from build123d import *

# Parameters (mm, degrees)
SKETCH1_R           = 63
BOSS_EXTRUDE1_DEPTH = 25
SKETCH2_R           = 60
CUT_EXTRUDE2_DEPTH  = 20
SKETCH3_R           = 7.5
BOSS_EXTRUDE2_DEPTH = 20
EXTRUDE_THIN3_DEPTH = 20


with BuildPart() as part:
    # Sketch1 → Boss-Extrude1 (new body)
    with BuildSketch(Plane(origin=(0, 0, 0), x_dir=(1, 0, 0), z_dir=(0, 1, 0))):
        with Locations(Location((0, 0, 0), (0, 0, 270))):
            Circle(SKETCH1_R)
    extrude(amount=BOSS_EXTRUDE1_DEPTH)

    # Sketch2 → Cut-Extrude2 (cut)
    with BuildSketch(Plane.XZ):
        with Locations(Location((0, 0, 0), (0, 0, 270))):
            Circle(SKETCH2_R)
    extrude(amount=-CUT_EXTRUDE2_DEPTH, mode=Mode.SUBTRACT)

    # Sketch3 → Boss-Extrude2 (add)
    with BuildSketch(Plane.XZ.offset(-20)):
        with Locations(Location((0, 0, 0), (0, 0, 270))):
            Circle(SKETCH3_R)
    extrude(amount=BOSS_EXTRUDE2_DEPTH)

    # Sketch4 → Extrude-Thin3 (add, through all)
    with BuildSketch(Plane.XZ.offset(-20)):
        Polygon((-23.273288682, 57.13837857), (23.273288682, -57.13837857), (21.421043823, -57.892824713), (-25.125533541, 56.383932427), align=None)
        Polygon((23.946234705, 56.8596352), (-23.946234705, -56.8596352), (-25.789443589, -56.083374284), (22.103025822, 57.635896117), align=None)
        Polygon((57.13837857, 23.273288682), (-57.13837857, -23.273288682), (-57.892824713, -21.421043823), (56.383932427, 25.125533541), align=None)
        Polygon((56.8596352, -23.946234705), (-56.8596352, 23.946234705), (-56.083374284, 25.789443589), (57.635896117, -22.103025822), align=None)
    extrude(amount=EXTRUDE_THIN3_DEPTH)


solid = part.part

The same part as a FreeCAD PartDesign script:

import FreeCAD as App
import Part
import Sketcher
from FreeCAD import Vector


def add_polygon(sketch, points):
    """Adds a closed chain of lines whose ends are joined by coincident constraints."""
    first, n = sketch.GeometryCount, len(points)
    for a, b in zip(points, points[1:] + points[:1]):
        sketch.addGeometry(Part.LineSegment(App.Vector(*a, 0), App.Vector(*b, 0)), False)
    for i in range(n):
        sketch.addConstraint(Sketcher.Constraint("Coincident", first + i, 2, first + (i + 1) % n, 1))

doc = App.newDocument("Part")
body = doc.addObject("PartDesign::Body", "Body")

# Sketch on XZ plane
sketch1 = body.newObject("Sketcher::SketchObject", "Sketch")
sketch1.AttachmentSupport = (doc.getObject("XZ_Plane"), [""])
sketch1.MapMode = "FlatFace"
sketch1.addGeometry(Part.Circle(Vector(0, 0, 0), Vector(0, 0, 1), 63), False)
sketch1.addConstraint([
    Sketcher.Constraint("Coincident", 0, 3, -1, 1),
    Sketcher.Constraint("Diameter", 0, 126.0),
])
pad1 = body.newObject("PartDesign::Pad", "Pad")
pad1.Profile = sketch1
pad1.Length = 25
pad1.Reversed = True

# Sketch on XZ plane
sketch2 = body.newObject("Sketcher::SketchObject", "Sketch001")
sketch2.AttachmentSupport = (doc.getObject("XZ_Plane"), [""])
sketch2.MapMode = "FlatFace"
sketch2.addGeometry(Part.Circle(Vector(0, 0, 0), Vector(0, 0, 1), 60), False)
sketch2.addConstraint([
    Sketcher.Constraint("Coincident", 0, 3, -1, 1),
    Sketcher.Constraint("Diameter", 0, 120.0),
])
pocket1 = body.newObject("PartDesign::Pocket", "Pocket")
pocket1.Profile = sketch2
pocket1.Length = 20

# Sketch on XZ plane
sketch3 = body.newObject("Sketcher::SketchObject", "Sketch002")
sketch3.AttachmentSupport = (doc.getObject("XZ_Plane"), [""])
sketch3.MapMode = "FlatFace"
sketch3.AttachmentOffset = App.Placement(Vector(0, 0, -20), App.Rotation())
sketch3.addGeometry(Part.Circle(Vector(0, 0, 0), Vector(0, 0, 1), 7.5), False)
sketch3.addConstraint([
    Sketcher.Constraint("Coincident", 0, 3, -1, 1),
    Sketcher.Constraint("Diameter", 0, 15.0),
])
pad2 = body.newObject("PartDesign::Pad", "Pad001")
pad2.Profile = sketch3
pad2.Length = 20

# Sketch on XZ plane
sketch4 = body.newObject("Sketcher::SketchObject", "Sketch003")
sketch4.AttachmentSupport = (doc.getObject("XZ_Plane"), [""])
sketch4.MapMode = "FlatFace"
sketch4.AttachmentOffset = App.Placement(Vector(0, 0, -20), App.Rotation())
add_polygon(sketch4, [(-2.606691, 1.097799), (-57.892825, -21.421044), (-57.138379, -23.273289), (-2.61947, -1.066948), (-25.789444, -56.083374), (-23.946235, -56.859635), (-1.097799, -2.606691), (21.421044, -57.892825), (23.273289, -57.138379), (0, 0), (56.859635, -23.946235), (57.635896, -22.103026), (2.61947, 1.066948), (57.138379, 23.273289), (56.383932, 25.125534), (1.097799, 2.606691), (23.946235, 56.859635), (22.103026, 57.635896), (-1.066948, 2.61947), (-23.273289, 57.138379), (-25.125534, 56.383932), (-3.673639, 3.717269), (-56.083374, 25.789444), (-56.859635, 23.946235)])  # lines 0-23
sketch4.addConstraint([
    Sketcher.Constraint("Coincident", 8, 2, -1, 1),
    Sketcher.Constraint("Symmetric", 2, 2, 11, 2, -1, 1),
    Sketcher.Constraint("Symmetric", 1, 2, 12, 2, -1, 1),
    Sketcher.Constraint("Symmetric", 5, 2, 14, 2, -1, 1),
    Sketcher.Constraint("Symmetric", 4, 2, 15, 2, -1, 1),
    Sketcher.Constraint("Symmetric", 7, 2, 18, 2, -1, 1),
    Sketcher.Constraint("Symmetric", 9, 2, 22, 2, -1, 1),
    Sketcher.Constraint("Perpendicular", 0, 1),
    Sketcher.Constraint("Perpendicular", 1, 2),
    Sketcher.Constraint("Perpendicular", 3, 4),
    Sketcher.Constraint("Perpendicular", 4, 5),
    Sketcher.Constraint("Perpendicular", 2, 6),
    Sketcher.Constraint("Perpendicular", 6, 7),
    Sketcher.Constraint("Perpendicular", 7, 8),
    Sketcher.Constraint("Perpendicular", 5, 9),
    Sketcher.Constraint("Perpendicular", 9, 10),
    Sketcher.Constraint("Perpendicular", 10, 11),
    Sketcher.Constraint("Perpendicular", 12, 13),
    Sketcher.Constraint("Perpendicular", 13, 14),
    Sketcher.Constraint("Perpendicular", 15, 16),
    Sketcher.Constraint("Perpendicular", 16, 17),
    Sketcher.Constraint("Perpendicular", 14, 18),
    Sketcher.Constraint("Perpendicular", 18, 19),
    Sketcher.Constraint("Perpendicular", 19, 20),
    Sketcher.Constraint("Perpendicular", 17, 21),
    Sketcher.Constraint("Perpendicular", 21, 22),
    Sketcher.Constraint("Perpendicular", 22, 23),
    Sketcher.Constraint("Equal", 0, 3),
    Sketcher.Constraint("Equal", 1, 4),
    Sketcher.Constraint("Equal", 2, 5),
    Sketcher.Constraint("Equal", 3, 6),
    Sketcher.Constraint("Equal", 4, 7),
    Sketcher.Constraint("Equal", 8, 9),
    Sketcher.Constraint("Equal", 7, 10),
    Sketcher.Constraint("Equal", 6, 11),
    Sketcher.Constraint("Equal", 13, 16),
    Sketcher.Constraint("Equal", 16, 19),
    Sketcher.Constraint("Equal", 20, 21),
    Sketcher.Constraint("Distance", 1, 2.0),
    Sketcher.Constraint("DistanceX", 5, 2, -1, 1, 1.097799),
    Sketcher.Constraint("DistanceY", 6, 2, 10, 2, 35.789799),
])
pad3 = body.newObject("PartDesign::Pad", "Pad002")
pad3.Profile = sketch4
pad3.Type = "UpToLast"

doc.recompute()
